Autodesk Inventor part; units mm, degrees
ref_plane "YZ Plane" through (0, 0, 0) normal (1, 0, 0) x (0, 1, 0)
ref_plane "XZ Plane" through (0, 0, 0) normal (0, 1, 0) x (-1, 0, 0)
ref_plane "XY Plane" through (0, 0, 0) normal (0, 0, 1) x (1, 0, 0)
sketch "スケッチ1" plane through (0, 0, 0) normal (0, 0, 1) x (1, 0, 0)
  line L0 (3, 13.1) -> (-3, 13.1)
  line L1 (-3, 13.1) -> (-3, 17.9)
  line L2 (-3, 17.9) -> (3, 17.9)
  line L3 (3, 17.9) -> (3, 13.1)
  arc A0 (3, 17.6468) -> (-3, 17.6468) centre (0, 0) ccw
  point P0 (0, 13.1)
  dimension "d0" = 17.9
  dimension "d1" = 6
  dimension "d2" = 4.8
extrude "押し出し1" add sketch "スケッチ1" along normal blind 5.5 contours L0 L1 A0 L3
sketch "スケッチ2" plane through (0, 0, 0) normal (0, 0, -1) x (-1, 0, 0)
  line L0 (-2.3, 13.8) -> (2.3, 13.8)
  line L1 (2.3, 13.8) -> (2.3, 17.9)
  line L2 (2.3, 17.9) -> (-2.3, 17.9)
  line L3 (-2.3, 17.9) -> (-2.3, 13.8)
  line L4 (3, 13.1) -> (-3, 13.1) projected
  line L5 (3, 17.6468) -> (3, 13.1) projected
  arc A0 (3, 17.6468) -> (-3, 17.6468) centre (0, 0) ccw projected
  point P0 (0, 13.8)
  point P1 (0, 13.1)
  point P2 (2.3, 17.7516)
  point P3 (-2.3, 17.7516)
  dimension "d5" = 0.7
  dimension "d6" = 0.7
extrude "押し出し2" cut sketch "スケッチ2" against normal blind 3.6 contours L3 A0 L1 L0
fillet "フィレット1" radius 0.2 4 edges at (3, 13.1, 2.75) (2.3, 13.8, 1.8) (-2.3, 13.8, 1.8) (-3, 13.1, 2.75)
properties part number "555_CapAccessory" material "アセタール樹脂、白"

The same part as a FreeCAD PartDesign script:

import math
import FreeCAD as App
import Part
import Sketcher


def edges_at(feature, points):
    """Names of the edges that pass closest to the given points."""
    edges = feature.Shape.Edges
    near = lambda p: min(range(len(edges)), key=lambda i: edges[i].distToShape(Part.Vertex(*p))[0])
    return sorted({f"Edge{near(p) + 1}" for p in points})

doc = App.newDocument("Part")
body = doc.addObject("PartDesign::Body", "Body")

sketch1 = doc.addObject("Sketcher::SketchObject", "Sketch")
body.addObject(sketch1)
sketch1.AttachmentSupport = (doc.XY_Plane, [""])
sketch1.MapMode = "FlatFace"
sketch1.addGeometry([
    Part.LineSegment(App.Vector(-3, 13.1, 0), App.Vector(3, 13.1, 0)),
    Part.LineSegment(App.Vector(3, 13.1, 0), App.Vector(3, 17.6, 0)),
    Part.ArcOfCircle(Part.Circle(App.Vector(0, 0, 0), App.Vector(0, 0, 1), 17.9), math.radians(80.35), math.radians(99.65)),
    Part.LineSegment(App.Vector(-3, 17.6, 0), App.Vector(-3, 13.1, 0)),
], False)
sketch1.addConstraint([
    Sketcher.Constraint("Coincident", 0, 2, 1, 1),
    Sketcher.Constraint("Coincident", 1, 2, 2, 1),
    Sketcher.Constraint("Coincident", 2, 2, 3, 1),
    Sketcher.Constraint("Coincident", 3, 2, 0, 1),
    Sketcher.Constraint("Horizontal", 0),
    Sketcher.Constraint("Vertical", 1),
    Sketcher.Constraint("Vertical", 3),
    Sketcher.Constraint("Coincident", 2, 3, -1, 1),
    Sketcher.Constraint("Horizontal", 1, 2, 2, 2),
    Sketcher.Constraint("Radius", 2, 17.9),
    Sketcher.Constraint("DistanceX", 0, 1, 0, 2, 6.0),
    Sketcher.Constraint("DistanceY", -1, 1, 0, 2, 13.1),
])
pad1 = doc.addObject("PartDesign::Pad", "Pad")
body.addObject(pad1)
pad1.Profile = sketch1
pad1.Length = 5.5

sketch2 = doc.addObject("Sketcher::SketchObject", "Sketch001")
body.addObject(sketch2)
sketch2.AttachmentSupport = (doc.XY_Plane, [""])
sketch2.MapMode = "FlatFace"
sketch2.addGeometry([
    Part.LineSegment(App.Vector(2.3, 17.8, 0), App.Vector(2.3, 13.8, 0)),
    Part.LineSegment(App.Vector(2.3, 13.8, 0), App.Vector(-2.3, 13.8, 0)),
    Part.LineSegment(App.Vector(-2.3, 13.8, 0), App.Vector(-2.3, 17.8, 0)),
    Part.ArcOfCircle(Part.Circle(App.Vector(0, 0, 0), App.Vector(0, 0, 1), 17.9), math.radians(82.62), math.radians(97.38)),
], False)
sketch2.addConstraint([
    Sketcher.Constraint("Coincident", 0, 2, 1, 1),
    Sketcher.Constraint("Coincident", 1, 2, 2, 1),
    Sketcher.Constraint("Coincident", 2, 2, 3, 2),
    Sketcher.Constraint("Coincident", 3, 1, 0, 1),
    Sketcher.Constraint("Vertical", 0),
    Sketcher.Constraint("Horizontal", 1),
    Sketcher.Constraint("Vertical", 2),
    Sketcher.Constraint("Coincident", 3, 3, -1, 1),
    Sketcher.Constraint("Horizontal", 2, 2, 3, 1),
    Sketcher.Constraint("Radius", 3, 17.9),
    Sketcher.Constraint("DistanceX", 1, 2, 1, 1, 4.6),
    Sketcher.Constraint("DistanceY", -1, 1, 0, 2, 13.8),
])
pocket1 = doc.addObject("PartDesign::Pocket", "Pocket")
body.addObject(pocket1)
pocket1.Profile = sketch2
pocket1.Length = 3.6
pocket1.Reversed = True
doc.recompute()

fillet = doc.addObject("PartDesign::Fillet", "Fillet")
body.addObject(fillet)
fillet.Base = (pocket1, edges_at(pocket1, [
    (3, 13.1, 2.75),
    (2.3, 13.8, 1.8),
    (-2.3, 13.8, 1.8),
    (-3, 13.1, 2.75),
]))
fillet.Radius = 0.2

doc.recompute()
